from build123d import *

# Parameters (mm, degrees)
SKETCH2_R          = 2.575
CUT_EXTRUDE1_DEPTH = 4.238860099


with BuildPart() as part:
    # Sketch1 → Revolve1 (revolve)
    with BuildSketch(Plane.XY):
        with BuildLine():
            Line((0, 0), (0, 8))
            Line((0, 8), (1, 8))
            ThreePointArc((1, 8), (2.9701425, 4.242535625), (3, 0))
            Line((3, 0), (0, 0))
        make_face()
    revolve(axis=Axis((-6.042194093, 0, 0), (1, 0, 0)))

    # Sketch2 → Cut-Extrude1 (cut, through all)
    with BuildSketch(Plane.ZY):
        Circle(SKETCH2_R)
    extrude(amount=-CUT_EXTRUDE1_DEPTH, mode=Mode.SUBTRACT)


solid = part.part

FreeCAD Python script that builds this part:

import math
import FreeCAD as App
import Part
import Sketcher

doc = App.newDocument("Part")
params = doc.addObject("Spreadsheet::Sheet", "Params")
for row, (alias, value) in enumerate([
    ("sketch1_radius", "9 mm"),
    ("sketch1_width", "3 mm"),
    ("sketch1_width2", "1 mm"),
    ("sketch1_height", "8 mm"),
    ("revolution_angle", "360 deg"),
    ("sketch2_diameter", "5.15 mm"),
], start=1):
    params.set(f"A{row}", alias)
    params.set(f"B{row}", "=" + value)
    params.setAlias(f"B{row}", alias)

body = doc.addObject("PartDesign::Body", "Body")

# Sketch on XY plane
sketch1 = body.newObject("Sketcher::SketchObject", "Sketch")
sketch1.AttachmentSupport = (doc.getObject("XY_Plane"), [""])
sketch1.MapMode = "FlatFace"
sketch1.addGeometry(Part.LineSegment(App.Vector(0, 8, 0), App.Vector(0, 0, 0)), False)
sketch1.addGeometry(Part.LineSegment(App.Vector(0, 0, 0), App.Vector(3, 0, 0)), False)
sketch1.addGeometry(Part.ArcOfCircle(Part.Circle(App.Vector(-5.8, 2.1, 0), App.Vector(0, 0, 1), 9), math.radians(-13), math.radians(41)), False)
sketch1.addGeometry(Part.LineSegment(App.Vector(1, 8, 0), App.Vector(0, 8, 0)), False)
sketch1.addConstraint(Sketcher.Constraint("Coincident", 0, 2, 1, 1))
sketch1.addConstraint(Sketcher.Constraint("Coincident", 1, 2, 2, 1))
sketch1.addConstraint(Sketcher.Constraint("Coincident", 2, 2, 3, 1))
sketch1.addConstraint(Sketcher.Constraint("Coincident", 3, 2, 0, 1))
sketch1.addConstraint(Sketcher.Constraint("Vertical", 0))
sketch1.addConstraint(Sketcher.Constraint("Horizontal", 1))
sketch1.addConstraint(Sketcher.Constraint("Horizontal", 3))
sketch1.addConstraint(Sketcher.Constraint("Coincident", 0, 2, -1, 1))
sketch1.addConstraint(Sketcher.Constraint("Radius", 2, 9.0))
sketch1.addConstraint(Sketcher.Constraint("DistanceX", 1, 1, 1, 2, 3.0))
sketch1.addConstraint(Sketcher.Constraint("DistanceX", 3, 2, 3, 1, 1.0))
sketch1.addConstraint(Sketcher.Constraint("DistanceY", 0, 2, 0, 1, 8.0))
sketch1.setExpression("Constraints[8]", "Params.sketch1_radius")
sketch1.setExpression("Constraints[9]", "Params.sketch1_width")
sketch1.setExpression("Constraints[10]", "Params.sketch1_width2")
sketch1.setExpression("Constraints[11]", "Params.sketch1_height")
revolution = body.newObject("PartDesign::Revolution", "Revolution")
revolution.Profile = sketch1
revolution.ReferenceAxis = (sketch1, ["H_Axis"])
revolution.setExpression("Angle", "Params.revolution_angle")

# Sketch on YZ plane
sketch2 = body.newObject("Sketcher::SketchObject", "Sketch001")
sketch2.AttachmentSupport = (doc.getObject("YZ_Plane"), [""])
sketch2.MapMode = "FlatFace"
sketch2.addGeometry(Part.Circle(App.Vector(0, 0, 0), App.Vector(0, 0, 1), 2.6), False)
sketch2.addConstraint(Sketcher.Constraint("Coincident", 0, 3, -1, 1))
sketch2.addConstraint(Sketcher.Constraint("Diameter", 0, 5.15))
sketch2.setExpression("Constraints[1]", "Params.sketch2_diameter")
pocket1 = body.newObject("PartDesign::Pocket", "Pocket")
pocket1.Profile = sketch2
pocket1.Type = "ThroughAll"
pocket1.Reversed = True

doc.recompute()
